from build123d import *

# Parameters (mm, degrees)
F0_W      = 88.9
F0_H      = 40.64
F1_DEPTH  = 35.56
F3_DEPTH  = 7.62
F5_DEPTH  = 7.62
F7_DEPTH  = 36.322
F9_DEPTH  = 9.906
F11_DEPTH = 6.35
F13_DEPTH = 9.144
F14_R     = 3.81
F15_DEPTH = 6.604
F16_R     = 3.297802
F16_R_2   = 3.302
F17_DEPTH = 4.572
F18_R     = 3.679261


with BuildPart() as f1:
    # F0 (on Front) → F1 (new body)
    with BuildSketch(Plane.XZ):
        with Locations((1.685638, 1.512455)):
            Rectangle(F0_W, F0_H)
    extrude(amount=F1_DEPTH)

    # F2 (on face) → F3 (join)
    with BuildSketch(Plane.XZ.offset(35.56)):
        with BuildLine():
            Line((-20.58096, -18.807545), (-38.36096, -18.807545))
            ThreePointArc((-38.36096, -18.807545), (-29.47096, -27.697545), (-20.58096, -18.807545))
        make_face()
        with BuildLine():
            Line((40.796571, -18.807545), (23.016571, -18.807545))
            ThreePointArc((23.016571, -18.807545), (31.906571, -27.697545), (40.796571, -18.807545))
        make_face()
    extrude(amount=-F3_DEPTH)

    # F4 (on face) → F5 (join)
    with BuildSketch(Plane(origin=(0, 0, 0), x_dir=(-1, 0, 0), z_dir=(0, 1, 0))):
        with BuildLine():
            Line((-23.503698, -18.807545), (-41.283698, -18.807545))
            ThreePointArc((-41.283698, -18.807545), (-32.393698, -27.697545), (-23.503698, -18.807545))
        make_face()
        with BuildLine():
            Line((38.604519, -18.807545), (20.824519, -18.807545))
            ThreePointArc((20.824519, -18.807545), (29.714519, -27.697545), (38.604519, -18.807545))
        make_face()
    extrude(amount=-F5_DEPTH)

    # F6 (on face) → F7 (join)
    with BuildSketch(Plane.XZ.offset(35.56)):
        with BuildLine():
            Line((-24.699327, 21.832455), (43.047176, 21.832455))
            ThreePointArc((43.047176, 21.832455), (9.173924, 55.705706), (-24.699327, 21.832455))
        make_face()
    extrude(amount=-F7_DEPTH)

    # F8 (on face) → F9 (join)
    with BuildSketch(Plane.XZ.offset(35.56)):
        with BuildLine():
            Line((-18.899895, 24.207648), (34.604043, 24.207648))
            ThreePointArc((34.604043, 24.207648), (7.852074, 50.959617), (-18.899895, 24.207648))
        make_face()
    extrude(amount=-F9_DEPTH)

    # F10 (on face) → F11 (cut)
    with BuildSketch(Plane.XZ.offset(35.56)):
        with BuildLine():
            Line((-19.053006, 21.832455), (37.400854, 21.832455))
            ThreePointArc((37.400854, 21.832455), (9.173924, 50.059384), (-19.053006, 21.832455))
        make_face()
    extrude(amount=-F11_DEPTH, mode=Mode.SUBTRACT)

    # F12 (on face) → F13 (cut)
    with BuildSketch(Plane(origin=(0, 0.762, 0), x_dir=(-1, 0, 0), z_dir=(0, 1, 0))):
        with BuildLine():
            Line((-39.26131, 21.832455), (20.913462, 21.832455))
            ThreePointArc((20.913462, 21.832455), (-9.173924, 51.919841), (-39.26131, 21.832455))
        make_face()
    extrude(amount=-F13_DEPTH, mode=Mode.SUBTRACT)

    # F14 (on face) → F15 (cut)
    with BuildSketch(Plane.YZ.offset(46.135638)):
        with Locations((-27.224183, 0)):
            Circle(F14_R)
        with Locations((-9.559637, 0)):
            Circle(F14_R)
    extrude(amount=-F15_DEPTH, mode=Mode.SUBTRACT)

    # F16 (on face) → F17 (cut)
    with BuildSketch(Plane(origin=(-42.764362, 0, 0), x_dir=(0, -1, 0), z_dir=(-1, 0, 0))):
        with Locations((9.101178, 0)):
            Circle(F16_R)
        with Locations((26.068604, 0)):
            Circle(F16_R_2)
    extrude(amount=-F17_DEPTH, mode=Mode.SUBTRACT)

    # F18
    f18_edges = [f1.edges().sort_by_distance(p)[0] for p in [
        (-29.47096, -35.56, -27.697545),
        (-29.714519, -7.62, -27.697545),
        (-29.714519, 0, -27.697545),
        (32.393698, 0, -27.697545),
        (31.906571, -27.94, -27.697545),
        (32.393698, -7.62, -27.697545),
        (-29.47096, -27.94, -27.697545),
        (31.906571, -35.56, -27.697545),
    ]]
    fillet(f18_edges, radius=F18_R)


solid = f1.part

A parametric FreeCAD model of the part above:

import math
import FreeCAD as App
import Part
import Sketcher
from FreeCAD import Vector
Q = App.Units.Quantity


def edges_at(feature, points):
    """Names of the edges that pass closest to the given points."""
    edges = feature.Shape.Edges
    near = lambda p: min(range(len(edges)), key=lambda i: edges[i].distToShape(Part.Vertex(*p))[0])
    return sorted({f"Edge{near(p) + 1}" for p in points})

doc = App.newDocument("Part")
body = doc.addObject("PartDesign::Body", "Body")

# Sketch on XZ plane
sketch1 = doc.addObject("Sketcher::SketchObject", "Sketch")
body.addObject(sketch1)
sketch1.AttachmentSupport = (doc.XZ_Plane, [""])
sketch1.MapMode = "FlatFace"
sketch1.addGeometry([
    Part.LineSegment(Vector(-43, 22, 0), Vector(-43, -19, 0)),
    Part.LineSegment(Vector(-43, -19, 0), Vector(46, -19, 0)),
    Part.LineSegment(Vector(46, -19, 0), Vector(46, 22, 0)),
    Part.LineSegment(Vector(46, 22, 0), Vector(-43, 22, 0)),
], False)
sketch1.addConstraint([
    Sketcher.Constraint("Coincident", 0, 2, 1, 1),
    Sketcher.Constraint("Coincident", 1, 2, 2, 1),
    Sketcher.Constraint("Coincident", 2, 2, 3, 1),
    Sketcher.Constraint("Coincident", 3, 2, 0, 1),
    Sketcher.Constraint("Vertical", 0),
    Sketcher.Constraint("Horizontal", 1),
    Sketcher.Constraint("Vertical", 2),
    Sketcher.Constraint("Horizontal", 3),
    Sketcher.Constraint("DistanceX", 1, 1, 1, 2, Q("3.5 in")),
    Sketcher.Constraint("DistanceY", 0, 2, 0, 1, Q("1.6 in")),
    Sketcher.Constraint("DistanceX", 0, 2, -1, 1, Q("42.764362 mm")),
    Sketcher.Constraint("DistanceY", 0, 2, -1, 1, Q("18.807545 mm")),
])
pad1 = doc.addObject("PartDesign::Pad", "Pad")
body.addObject(pad1)
pad1.Profile = sketch1
pad1.Length = Q("1.4 in")

# Sketch on XZ plane
sketch2 = doc.addObject("Sketcher::SketchObject", "Sketch001")
body.addObject(sketch2)
sketch2.AttachmentSupport = (doc.XZ_Plane, [""])
sketch2.MapMode = "FlatFace"
sketch2.AttachmentOffset = App.Placement(Vector(0, 0, 1.4 * 25.4), App.Rotation())
sketch2.addGeometry([
    Part.LineSegment(Vector(-21, -19, 0), Vector(-38, -19, 0)),
    Part.ArcOfCircle(Part.Circle(Vector(-29, -19, 0), Vector(0, 0, 1), 9), math.radians(180), math.radians(360)),
    Part.LineSegment(Vector(41, -19, 0), Vector(23, -19, 0)),
    Part.ArcOfCircle(Part.Circle(Vector(32, -19, 0), Vector(0, 0, 1), 9), math.radians(180), math.radians(360)),
], False)
sketch2.addConstraint([
    Sketcher.Constraint("Coincident", 0, 1, 1, 2),
    Sketcher.Constraint("Coincident", 1, 1, 0, 2),
    Sketcher.Constraint("Coincident", 2, 1, 3, 2),
    Sketcher.Constraint("Coincident", 3, 1, 2, 2),
    Sketcher.Constraint("Horizontal", 0),
    Sketcher.Constraint("Horizontal", 2),
    Sketcher.Constraint("Equal", 1, 3),
    Sketcher.Constraint("Horizontal", 1, 3, 3, 3),
    Sketcher.Constraint("Horizontal", 3, 3, 0, 1),
    Sketcher.Constraint("Horizontal", 1, 1, 2, 1),
    Sketcher.Constraint("Radius", 1, Q("0.35 in")),
    Sketcher.Constraint("DistanceX", 1, 3, -1, 1, Q("29.47096 mm")),
    Sketcher.Constraint("DistanceX", -1, 1, 3, 3, Q("31.906571 mm")),
    Sketcher.Constraint("DistanceY", 1, 3, -1, 1, Q("18.807545 mm")),
])
pad2 = doc.addObject("PartDesign::Pad", "Pad001")
body.addObject(pad2)
pad2.Profile = sketch2
pad2.Length = Q("0.3 in")
pad2.Reversed = True

# Sketch on XZ plane
sketch3 = doc.addObject("Sketcher::SketchObject", "Sketch002")
body.addObject(sketch3)
sketch3.AttachmentSupport = (doc.XZ_Plane, [""])
sketch3.MapMode = "FlatFace"
sketch3.addGeometry([
    Part.LineSegment(Vector(24, -19, 0), Vector(41, -19, 0)),
    Part.ArcOfCircle(Part.Circle(Vector(32, -19, 0), Vector(0, 0, 1), 9), math.radians(180), math.radians(360)),
    Part.LineSegment(Vector(-39, -19, 0), Vector(-21, -19, 0)),
    Part.ArcOfCircle(Part.Circle(Vector(-30, -19, 0), Vector(0, 0, 1), 9), math.radians(180), math.radians(360)),
], False)
sketch3.addConstraint([
    Sketcher.Constraint("Coincident", 0, 1, 1, 1),
    Sketcher.Constraint("Coincident", 1, 2, 0, 2),
    Sketcher.Constraint("Coincident", 2, 1, 3, 1),
    Sketcher.Constraint("Coincident", 3, 2, 2, 2),
    Sketcher.Constraint("Horizontal", 0),
    Sketcher.Constraint("Horizontal", 2),
    Sketcher.Constraint("Equal", 1, 3),
    Sketcher.Constraint("Horizontal", 1, 3, 3, 3),
    Sketcher.Constraint("Horizontal", 3, 3, 0, 1),
    Sketcher.Constraint("Horizontal", 1, 2, 2, 1),
    Sketcher.Constraint("Radius", 1, Q("0.35 in")),
    Sketcher.Constraint("DistanceX", -1, 1, 0, 1, Q("23.503698 mm")),
    Sketcher.Constraint("DistanceX", 3, 3, -1, 1, Q("29.714519 mm")),
    Sketcher.Constraint("DistanceY", 1, 3, -1, 1, Q("18.807545 mm")),
])
pad3 = doc.addObject("PartDesign::Pad", "Pad002")
body.addObject(pad3)
pad3.Profile = sketch3
pad3.Length = Q("0.3 in")

# Sketch on XZ plane
sketch4 = doc.addObject("Sketcher::SketchObject", "Sketch003")
body.addObject(sketch4)
sketch4.AttachmentSupport = (doc.XZ_Plane, [""])
sketch4.MapMode = "FlatFace"
sketch4.AttachmentOffset = App.Placement(Vector(0, 0, 1.4 * 25.4), App.Rotation())
sketch4.addGeometry([
    Part.LineSegment(Vector(-25, 22, 0), Vector(43, 22, 0)),
    Part.ArcOfCircle(Part.Circle(Vector(9, 22, 0), Vector(0, 0, 1), 34), math.radians(0), math.radians(180)),
], False)
sketch4.addConstraint([
    Sketcher.Constraint("Coincident", 0, 1, 1, 2),
    Sketcher.Constraint("Coincident", 1, 1, 0, 2),
    Sketcher.Constraint("Horizontal", 0),
    Sketcher.Constraint("Horizontal", 1, 3, 0, 1),
    Sketcher.Constraint("Radius", 1, Q("33.873252 mm")),
    Sketcher.Constraint("DistanceX", -1, 1, 1, 3, Q("9.173925 mm")),
    Sketcher.Constraint("DistanceY", -1, 1, 1, 3, Q("21.832455 mm")),
])
pad4 = doc.addObject("PartDesign::Pad", "Pad003")
body.addObject(pad4)
pad4.Profile = sketch4
pad4.Length = Q("1.43 in")
pad4.Reversed = True

# Sketch on XZ plane
sketch5 = doc.addObject("Sketcher::SketchObject", "Sketch004")
body.addObject(sketch5)
sketch5.AttachmentSupport = (doc.XZ_Plane, [""])
sketch5.MapMode = "FlatFace"
sketch5.AttachmentOffset = App.Placement(Vector(0, 0, 1.4 * 25.4), App.Rotation())
sketch5.addGeometry([
    Part.LineSegment(Vector(-19, 24, 0), Vector(35, 24, 0)),
    Part.ArcOfCircle(Part.Circle(Vector(8, 24, 0), Vector(0, 0, 1), 27), math.radians(0), math.radians(180)),
], False)
sketch5.addConstraint([
    Sketcher.Constraint("Coincident", 0, 1, 1, 2),
    Sketcher.Constraint("Coincident", 1, 1, 0, 2),
    Sketcher.Constraint("Horizontal", 0),
    Sketcher.Constraint("Horizontal", 1, 3, 0, 1),
    Sketcher.Constraint("Radius", 1, Q("26.751969 mm")),
    Sketcher.Constraint("DistanceX", -1, 1, 1, 3, Q("7.852074 mm")),
    Sketcher.Constraint("DistanceY", -1, 1, 1, 3, Q("24.207648 mm")),
])
pad5 = doc.addObject("PartDesign::Pad", "Pad004")
body.addObject(pad5)
pad5.Profile = sketch5
pad5.Length = Q("0.39 in")
pad5.Reversed = True

# Sketch on XZ plane
sketch6 = doc.addObject("Sketcher::SketchObject", "Sketch005")
body.addObject(sketch6)
sketch6.AttachmentSupport = (doc.XZ_Plane, [""])
sketch6.MapMode = "FlatFace"
sketch6.AttachmentOffset = App.Placement(Vector(0, 0, 1.4 * 25.4), App.Rotation())
sketch6.addGeometry([
    Part.LineSegment(Vector(-19, 22, 0), Vector(37, 22, 0)),
    Part.ArcOfCircle(Part.Circle(Vector(9, 22, 0), Vector(0, 0, 1), 28), math.radians(0), math.radians(180)),
], False)
sketch6.addConstraint([
    Sketcher.Constraint("Coincident", 0, 1, 1, 2),
    Sketcher.Constraint("Coincident", 1, 1, 0, 2),
    Sketcher.Constraint("Horizontal", 0),
    Sketcher.Constraint("Horizontal", 1, 3, 0, 1),
    Sketcher.Constraint("Radius", 1, Q("28.22693 mm")),
    Sketcher.Constraint("DistanceX", -1, 1, 1, 3, Q("9.173924 mm")),
    Sketcher.Constraint("DistanceY", -1, 1, 1, 3, Q("21.832454 mm")),
])
pocket1 = doc.addObject("PartDesign::Pocket", "Pocket")
body.addObject(pocket1)
pocket1.Profile = sketch6
pocket1.Length = Q("0.25 in")

# Sketch on XZ plane
sketch7 = doc.addObject("Sketcher::SketchObject", "Sketch006")
body.addObject(sketch7)
sketch7.AttachmentSupport = (doc.XZ_Plane, [""])
sketch7.MapMode = "FlatFace"
sketch7.AttachmentOffset = App.Placement(Vector(0, 0, -0.03 * 25.4), App.Rotation())
sketch7.addGeometry([
    Part.LineSegment(Vector(39, 22, 0), Vector(-21, 22, 0)),
    Part.ArcOfCircle(Part.Circle(Vector(9, 22, 0), Vector(0, 0, 1), 30), math.radians(0), math.radians(180)),
], False)
sketch7.addConstraint([
    Sketcher.Constraint("Coincident", 0, 1, 1, 1),
    Sketcher.Constraint("Coincident", 1, 2, 0, 2),
    Sketcher.Constraint("Horizontal", 0),
    Sketcher.Constraint("Horizontal", 1, 3, 0, 1),
    Sketcher.Constraint("Radius", 1, Q("30.087386 mm")),
    Sketcher.Constraint("DistanceX", -1, 1, 0, 1, Q("39.26131 mm")),
    Sketcher.Constraint("DistanceY", -1, 1, 1, 3, Q("21.832455 mm")),
])
pocket2 = doc.addObject("PartDesign::Pocket", "Pocket001")
body.addObject(pocket2)
pocket2.Profile = sketch7
pocket2.Length = Q("0.36 in")
pocket2.Reversed = True

# Sketch on YZ plane
sketch8 = doc.addObject("Sketcher::SketchObject", "Sketch007")
body.addObject(sketch8)
sketch8.AttachmentSupport = (doc.YZ_Plane, [""])
sketch8.MapMode = "FlatFace"
sketch8.AttachmentOffset = App.Placement(Vector(0, 0, 46.135638), App.Rotation())
sketch8.addGeometry([
    Part.Circle(Vector(-27.2, 0, 0), Vector(0, 0, 1), 3.8),
    Part.Circle(Vector(-9.6, 0, 0), Vector(0, 0, 1), 3.8),
], False)
sketch8.addConstraint([
    Sketcher.Constraint("Equal", 0, 1),
    Sketcher.Constraint("PointOnObject", 0, 3, -1),
    Sketcher.Constraint("PointOnObject", 1, 3, -1),
    Sketcher.Constraint("Diameter", 0, Q("0.3 in")),
    Sketcher.Constraint("DistanceX", 0, 3, -1, 1, Q("27.224183 mm")),
    Sketcher.Constraint("DistanceX", 1, 3, -1, 1, Q("9.559637 mm")),
])
pocket3 = doc.addObject("PartDesign::Pocket", "Pocket002")
body.addObject(pocket3)
pocket3.Profile = sketch8
pocket3.Length = Q("0.26 in")

# Sketch on YZ plane
sketch9 = doc.addObject("Sketcher::SketchObject", "Sketch008")
body.addObject(sketch9)
sketch9.AttachmentSupport = (doc.YZ_Plane, [""])
sketch9.MapMode = "FlatFace"
sketch9.AttachmentOffset = App.Placement(Vector(0, 0, -42.764362), App.Rotation())
sketch9.addGeometry([
    Part.Circle(Vector(-9.1, 0, 0), Vector(0, 0, 1), 3.3),
    Part.Circle(Vector(-26.1, 0, 0), Vector(0, 0, 1), 3.3),
], False)
sketch9.addConstraint([
    Sketcher.Constraint("PointOnObject", 0, 3, -1),
    Sketcher.Constraint("PointOnObject", 1, 3, -1),
    Sketcher.Constraint("Diameter", 1, Q("0.26 in")),
    Sketcher.Constraint("Diameter", 0, Q("6.595604 mm")),
    Sketcher.Constraint("DistanceX", 0, 3, -1, 1, Q("9.101178 mm")),
    Sketcher.Constraint("DistanceX", 1, 3, -1, 1, Q("26.068604 mm")),
])
pocket4 = doc.addObject("PartDesign::Pocket", "Pocket003")
body.addObject(pocket4)
pocket4.Profile = sketch9
pocket4.Length = Q("0.18 in")
pocket4.Reversed = True
doc.recompute()

fillet = doc.addObject("PartDesign::Fillet", "Fillet")
body.addObject(fillet)
fillet.Base = (pocket4, edges_at(pocket4, [
    (-29.471, -35.56, -27.698),
    (-29.715, -7.62, -27.698),
    (-29.715, 0, -27.698),
    (32.394, 0, -27.698),
    (31.907, -27.94, -27.698),
    (32.394, -7.62, -27.698),
    (-29.471, -27.94, -27.698),
    (31.907, -35.56, -27.698),
]))
fillet.Radius = 3.679261

doc.recompute()
